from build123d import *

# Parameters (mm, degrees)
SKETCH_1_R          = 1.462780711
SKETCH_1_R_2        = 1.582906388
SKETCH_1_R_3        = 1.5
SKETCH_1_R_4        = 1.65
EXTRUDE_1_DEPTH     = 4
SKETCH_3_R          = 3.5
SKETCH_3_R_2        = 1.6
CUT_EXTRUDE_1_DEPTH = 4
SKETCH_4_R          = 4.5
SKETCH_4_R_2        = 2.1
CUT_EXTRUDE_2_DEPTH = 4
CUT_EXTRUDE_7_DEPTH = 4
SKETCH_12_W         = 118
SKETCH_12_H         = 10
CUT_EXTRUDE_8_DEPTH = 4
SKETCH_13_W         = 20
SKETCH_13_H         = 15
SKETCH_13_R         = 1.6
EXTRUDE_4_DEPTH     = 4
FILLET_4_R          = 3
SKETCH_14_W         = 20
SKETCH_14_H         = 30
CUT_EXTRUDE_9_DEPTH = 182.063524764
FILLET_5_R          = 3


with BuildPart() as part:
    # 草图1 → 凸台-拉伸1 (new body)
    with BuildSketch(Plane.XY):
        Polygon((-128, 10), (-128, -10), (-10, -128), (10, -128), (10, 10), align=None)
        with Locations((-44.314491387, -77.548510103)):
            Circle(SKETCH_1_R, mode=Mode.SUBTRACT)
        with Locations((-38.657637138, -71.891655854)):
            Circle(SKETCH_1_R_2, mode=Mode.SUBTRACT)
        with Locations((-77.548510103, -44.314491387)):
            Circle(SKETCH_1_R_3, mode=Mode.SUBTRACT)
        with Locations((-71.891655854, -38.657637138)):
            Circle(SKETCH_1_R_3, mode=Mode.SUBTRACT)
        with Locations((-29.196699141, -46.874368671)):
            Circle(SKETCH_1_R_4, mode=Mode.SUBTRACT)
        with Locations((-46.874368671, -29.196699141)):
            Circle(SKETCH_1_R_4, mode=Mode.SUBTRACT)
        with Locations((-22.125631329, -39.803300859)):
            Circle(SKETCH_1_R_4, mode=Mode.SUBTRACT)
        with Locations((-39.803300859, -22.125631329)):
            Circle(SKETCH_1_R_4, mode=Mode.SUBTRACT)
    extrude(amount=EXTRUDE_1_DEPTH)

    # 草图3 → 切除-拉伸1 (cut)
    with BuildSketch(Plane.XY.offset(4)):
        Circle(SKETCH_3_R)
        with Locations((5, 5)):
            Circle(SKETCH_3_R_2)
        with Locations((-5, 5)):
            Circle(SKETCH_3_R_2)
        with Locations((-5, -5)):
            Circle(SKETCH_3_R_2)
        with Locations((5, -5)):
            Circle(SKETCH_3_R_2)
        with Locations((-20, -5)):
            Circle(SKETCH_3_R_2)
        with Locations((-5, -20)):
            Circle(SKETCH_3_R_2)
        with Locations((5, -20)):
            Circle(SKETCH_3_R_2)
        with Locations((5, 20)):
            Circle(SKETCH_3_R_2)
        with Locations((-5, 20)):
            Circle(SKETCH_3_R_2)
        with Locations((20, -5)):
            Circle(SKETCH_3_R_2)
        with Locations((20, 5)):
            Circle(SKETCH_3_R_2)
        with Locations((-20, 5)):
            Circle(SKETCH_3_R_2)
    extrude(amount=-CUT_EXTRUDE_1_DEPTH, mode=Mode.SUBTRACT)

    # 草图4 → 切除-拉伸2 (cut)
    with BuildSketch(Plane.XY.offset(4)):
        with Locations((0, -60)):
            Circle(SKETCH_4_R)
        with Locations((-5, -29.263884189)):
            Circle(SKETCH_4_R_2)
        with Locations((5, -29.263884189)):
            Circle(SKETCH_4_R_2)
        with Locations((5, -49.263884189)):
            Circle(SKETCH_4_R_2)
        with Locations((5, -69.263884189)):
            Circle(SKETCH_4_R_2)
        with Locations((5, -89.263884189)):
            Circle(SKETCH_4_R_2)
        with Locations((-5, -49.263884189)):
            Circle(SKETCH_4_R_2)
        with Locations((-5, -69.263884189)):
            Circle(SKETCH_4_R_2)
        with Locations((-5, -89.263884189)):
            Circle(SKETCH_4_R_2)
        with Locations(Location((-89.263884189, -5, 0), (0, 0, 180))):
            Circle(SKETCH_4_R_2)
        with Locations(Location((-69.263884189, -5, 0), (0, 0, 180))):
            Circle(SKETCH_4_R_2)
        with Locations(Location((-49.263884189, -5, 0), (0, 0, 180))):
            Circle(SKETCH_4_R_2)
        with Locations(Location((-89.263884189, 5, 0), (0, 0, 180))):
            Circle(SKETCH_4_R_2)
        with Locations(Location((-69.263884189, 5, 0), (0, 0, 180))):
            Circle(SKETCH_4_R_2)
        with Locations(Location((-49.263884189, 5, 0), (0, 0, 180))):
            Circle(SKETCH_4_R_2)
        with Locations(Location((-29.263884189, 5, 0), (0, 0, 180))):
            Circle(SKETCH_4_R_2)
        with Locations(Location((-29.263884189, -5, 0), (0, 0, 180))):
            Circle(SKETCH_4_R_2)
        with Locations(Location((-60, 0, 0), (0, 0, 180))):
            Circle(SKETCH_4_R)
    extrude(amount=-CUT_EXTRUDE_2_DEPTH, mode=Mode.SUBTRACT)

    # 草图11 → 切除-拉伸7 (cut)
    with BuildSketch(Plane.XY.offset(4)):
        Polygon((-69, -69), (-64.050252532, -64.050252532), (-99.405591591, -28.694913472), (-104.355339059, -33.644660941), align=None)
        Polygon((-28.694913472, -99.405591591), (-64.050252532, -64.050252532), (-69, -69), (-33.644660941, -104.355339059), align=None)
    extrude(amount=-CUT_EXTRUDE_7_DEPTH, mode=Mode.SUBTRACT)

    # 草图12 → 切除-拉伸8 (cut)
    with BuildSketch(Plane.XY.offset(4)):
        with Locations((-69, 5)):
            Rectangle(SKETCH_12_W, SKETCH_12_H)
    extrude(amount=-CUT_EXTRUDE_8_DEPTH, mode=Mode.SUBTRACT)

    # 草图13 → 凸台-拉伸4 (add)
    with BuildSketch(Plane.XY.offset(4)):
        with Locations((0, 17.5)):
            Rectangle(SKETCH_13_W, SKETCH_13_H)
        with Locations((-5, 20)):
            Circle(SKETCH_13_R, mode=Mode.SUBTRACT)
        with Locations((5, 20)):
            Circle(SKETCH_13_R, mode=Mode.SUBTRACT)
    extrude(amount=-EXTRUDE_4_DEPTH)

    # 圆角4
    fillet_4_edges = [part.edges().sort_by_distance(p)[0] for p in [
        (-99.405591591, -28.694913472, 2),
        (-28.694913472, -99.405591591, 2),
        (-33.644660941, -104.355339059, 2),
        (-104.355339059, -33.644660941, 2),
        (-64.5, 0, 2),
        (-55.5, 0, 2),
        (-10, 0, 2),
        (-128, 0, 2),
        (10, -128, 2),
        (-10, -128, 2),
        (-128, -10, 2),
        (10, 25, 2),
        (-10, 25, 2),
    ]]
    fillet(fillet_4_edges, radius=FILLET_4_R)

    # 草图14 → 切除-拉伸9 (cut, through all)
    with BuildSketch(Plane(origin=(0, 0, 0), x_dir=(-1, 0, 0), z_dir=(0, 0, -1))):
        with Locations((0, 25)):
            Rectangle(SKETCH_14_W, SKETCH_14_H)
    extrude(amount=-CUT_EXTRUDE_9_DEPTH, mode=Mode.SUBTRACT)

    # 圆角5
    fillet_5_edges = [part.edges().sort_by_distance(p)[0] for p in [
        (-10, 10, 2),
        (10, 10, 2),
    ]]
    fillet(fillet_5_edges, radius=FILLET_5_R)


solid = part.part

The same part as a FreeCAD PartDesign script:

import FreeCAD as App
import Part
import Sketcher

V = App.Vector
Q = App.Units.Quantity


def edges_at(feature, points):
    """Names of the edges that pass closest to the given points."""
    edges = feature.Shape.Edges
    near = lambda p: min(range(len(edges)), key=lambda i: edges[i].distToShape(Part.Vertex(*p))[0])
    return sorted({f"Edge{near(p) + 1}" for p in points})

doc = App.newDocument("Part")
body = doc.addObject("PartDesign::Body", "Body")

# Sketch on XY plane
sketch1 = body.newObject("Sketcher::SketchObject", "Sketch")
sketch1.AttachmentSupport = (doc.getObject("XY_Plane"), [""])
sketch1.MapMode = "FlatFace"
sketch1.addGeometry(Part.LineSegment(V(-128, 10, 0), V(-128, -10, 0)), False)
sketch1.addGeometry(Part.LineSegment(V(-128, -10, 0), V(-10, -128, 0)), False)
sketch1.addGeometry(Part.LineSegment(V(-10, -128, 0), V(10, -128, 0)), False)
sketch1.addGeometry(Part.LineSegment(V(10, -128, 0), V(10, 10, 0)), False)
sketch1.addGeometry(Part.LineSegment(V(10, 10, 0), V(-128, 10, 0)), False)
sketch1.addGeometry(Part.Circle(V(-44.3, -77.5, 0), V(0, 0, 1), 1.5), False)
sketch1.addGeometry(Part.Circle(V(-38.7, -71.9, 0), V(0, 0, 1), 1.6), False)
sketch1.addGeometry(Part.Circle(V(-77.5, -44.3, 0), V(0, 0, 1), 1.5), False)
sketch1.addGeometry(Part.Circle(V(-71.9, -38.7, 0), V(0, 0, 1), 1.5), False)
sketch1.addGeometry(Part.Circle(V(-29.2, -46.9, 0), V(0, 0, 1), 1.6), False)
sketch1.addGeometry(Part.Circle(V(-22.1, -39.8, 0), V(0, 0, 1), 1.6), False)
sketch1.addGeometry(Part.Circle(V(-46.9, -29.2, 0), V(0, 0, 1), 1.6), False)
sketch1.addGeometry(Part.Circle(V(-39.8, -22.1, 0), V(0, 0, 1), 1.6), False)
sketch1.addConstraint(Sketcher.Constraint("Coincident", 0, 2, 1, 1))
sketch1.addConstraint(Sketcher.Constraint("Coincident", 1, 2, 2, 1))
sketch1.addConstraint(Sketcher.Constraint("Coincident", 2, 2, 3, 1))
sketch1.addConstraint(Sketcher.Constraint("Coincident", 3, 2, 4, 1))
sketch1.addConstraint(Sketcher.Constraint("Coincident", 4, 2, 0, 1))
sketch1.addConstraint(Sketcher.Constraint("Vertical", 0))
sketch1.addConstraint(Sketcher.Constraint("Horizontal", 2))
sketch1.addConstraint(Sketcher.Constraint("Vertical", 3))
sketch1.addConstraint(Sketcher.Constraint("Horizontal", 4))
sketch1.addConstraint(Sketcher.Constraint("Equal", 7, 8))
sketch1.addConstraint(Sketcher.Constraint("Equal", 9, 10))
sketch1.addConstraint(Sketcher.Constraint("Equal", 10, 11))
sketch1.addConstraint(Sketcher.Constraint("Equal", 11, 12))
sketch1.addConstraint(Sketcher.Constraint("Equal", 2, 0))
sketch1.addConstraint(Sketcher.Constraint("Equal", 4, 3))
sketch1.addConstraint(Sketcher.Constraint("Diameter", 7, Q("3 mm")))
sketch1.addConstraint(Sketcher.Constraint("Diameter", 9, Q("3.3 mm")))
sketch1.addConstraint(Sketcher.Constraint("DistanceX", 2, 1, 2, 2, Q("20 mm")))
sketch1.addConstraint(Sketcher.Constraint("DistanceX", 4, 2, 4, 1, Q("138 mm")))
sketch1.addConstraint(Sketcher.Constraint("DistanceX", 0, 2, -1, 1, Q("128 mm")))
sketch1.addConstraint(Sketcher.Constraint("DistanceY", 0, 2, -1, 1, Q("10 mm")))
sketch1.addConstraint(Sketcher.Constraint("Diameter", 5, Q("2.925561 mm")))
sketch1.addConstraint(Sketcher.Constraint("Diameter", 6, Q("3.165813 mm")))
sketch1.addConstraint(Sketcher.Constraint("DistanceX", 9, 3, -1, 1, Q("29.196699 mm")))
sketch1.addConstraint(Sketcher.Constraint("DistanceY", 10, 3, -1, 1, Q("39.803301 mm")))
sketch1.addConstraint(Sketcher.Constraint("DistanceY", 11, 3, -1, 1, Q("29.196699 mm")))
sketch1.addConstraint(Sketcher.Constraint("DistanceX", 12, 3, -1, 1, Q("39.803301 mm")))
sketch1.addConstraint(Sketcher.Constraint("DistanceX", 5, 3, -1, 1, Q("44.314491 mm")))
sketch1.addConstraint(Sketcher.Constraint("DistanceY", 5, 3, -1, 1, Q("77.54851 mm")))
sketch1.addConstraint(Sketcher.Constraint("DistanceX", 7, 3, -1, 1, Q("77.54851 mm")))
sketch1.addConstraint(Sketcher.Constraint("DistanceY", 7, 3, -1, 1, Q("44.314491 mm")))
sketch1.addConstraint(Sketcher.Constraint("DistanceY", 9, 3, -1, 1, Q("46.874369 mm")))
sketch1.addConstraint(Sketcher.Constraint("DistanceX", 10, 3, -1, 1, Q("22.125631 mm")))
sketch1.addConstraint(Sketcher.Constraint("DistanceX", 11, 3, -1, 1, Q("46.874369 mm")))
sketch1.addConstraint(Sketcher.Constraint("DistanceY", 12, 3, -1, 1, Q("22.125631 mm")))
sketch1.addConstraint(Sketcher.Constraint("DistanceX", 8, 3, 6, 3, Q("33.234019 mm")))
sketch1.addConstraint(Sketcher.Constraint("DistanceY", 6, 3, 8, 3, Q("33.234019 mm")))
sketch1.addConstraint(Sketcher.Constraint("DistanceY", 9, 3, 8, 3, Q("8.216732 mm")))
sketch1.addConstraint(Sketcher.Constraint("DistanceX", 11, 3, 6, 3, Q("8.216732 mm")))
pad1 = body.newObject("PartDesign::Pad", "Pad")
pad1.Profile = sketch1
pad1.Length = 4

# Sketch on XY plane
sketch2 = body.newObject("Sketcher::SketchObject", "Sketch001")
sketch2.AttachmentSupport = (doc.getObject("XY_Plane"), [""])
sketch2.MapMode = "FlatFace"
sketch2.AttachmentOffset = App.Placement(V(0, 0, 4), App.Rotation())
sketch2.addGeometry(Part.Circle(V(0, 0, 0), V(0, 0, 1), 3.5), False)
sketch2.addGeometry(Part.Circle(V(5, 5, 0), V(0, 0, 1), 1.6), False)
sketch2.addGeometry(Part.Circle(V(-5, 5, 0), V(0, 0, 1), 1.6), False)
sketch2.addGeometry(Part.Circle(V(-5, -5, 0), V(0, 0, 1), 1.6), False)
sketch2.addGeometry(Part.Circle(V(5, -5, 0), V(0, 0, 1), 1.6), False)
sketch2.addGeometry(Part.Circle(V(-20, -5, 0), V(0, 0, 1), 1.6), False)
sketch2.addGeometry(Part.Circle(V(-5, -20, 0), V(0, 0, 1), 1.6), False)
sketch2.addGeometry(Part.Circle(V(5, -20, 0), V(0, 0, 1), 1.6), False)
sketch2.addGeometry(Part.Circle(V(5, 20, 0), V(0, 0, 1), 1.6), False)
sketch2.addGeometry(Part.Circle(V(-5, 20, 0), V(0, 0, 1), 1.6), False)
sketch2.addGeometry(Part.Circle(V(20, -5, 0), V(0, 0, 1), 1.6), False)
sketch2.addGeometry(Part.Circle(V(20, 5, 0), V(0, 0, 1), 1.6), False)
sketch2.addGeometry(Part.Circle(V(-20, 5, 0), V(0, 0, 1), 1.6), False)
sketch2.addConstraint(Sketcher.Constraint("Coincident", 0, 3, -1, 1))
sketch2.addConstraint(Sketcher.Constraint("Equal", 1, 2))
sketch2.addConstraint(Sketcher.Constraint("Equal", 2, 3))
sketch2.addConstraint(Sketcher.Constraint("Equal", 3, 4))
sketch2.addConstraint(Sketcher.Constraint("Equal", 4, 5))
sketch2.addConstraint(Sketcher.Constraint("Equal", 5, 6))
sketch2.addConstraint(Sketcher.Constraint("Equal", 6, 7))
sketch2.addConstraint(Sketcher.Constraint("Equal", 7, 8))
sketch2.addConstraint(Sketcher.Constraint("Equal", 8, 9))
sketch2.addConstraint(Sketcher.Constraint("Equal", 9, 10))
sketch2.addConstraint(Sketcher.Constraint("Equal", 10, 11))
sketch2.addConstraint(Sketcher.Constraint("Equal", 11, 12))
sketch2.addConstraint(Sketcher.Constraint("Symmetric", 1, 3, 3, 3, -1, 1))
sketch2.addConstraint(Sketcher.Constraint("Symmetric", 2, 3, 4, 3, -1, 1))
sketch2.addConstraint(Sketcher.Constraint("Symmetric", 6, 3, 8, 3, -1, 1))
sketch2.addConstraint(Sketcher.Constraint("Symmetric", 7, 3, 9, 3, -1, 1))
sketch2.addConstraint(Sketcher.Constraint("Symmetric", 5, 3, 11, 3, -1, 1))
sketch2.addConstraint(Sketcher.Constraint("Symmetric", 10, 3, 12, 3, -1, 1))
sketch2.addConstraint(Sketcher.Constraint("Symmetric", 1, 3, 2, 3, -2))
sketch2.addConstraint(Sketcher.Constraint("Symmetric", 6, 3, 7, 3, -2))
sketch2.addConstraint(Sketcher.Constraint("Symmetric", 5, 3, 10, 3, -2))
sketch2.addConstraint(Sketcher.Constraint("Horizontal", 4, 3, 5, 3))
sketch2.addConstraint(Sketcher.Constraint("Vertical", 3, 3, 6, 3))
sketch2.addConstraint(Sketcher.Constraint("Diameter", 0, Q("7 mm")))
sketch2.addConstraint(Sketcher.Constraint("Diameter", 1, Q("3.2 mm")))
sketch2.addConstraint(Sketcher.Constraint("DistanceX", -1, 1, 1, 3, Q("5 mm")))
sketch2.addConstraint(Sketcher.Constraint("DistanceY", -1, 1, 1, 3, Q("5 mm")))
sketch2.addConstraint(Sketcher.Constraint("DistanceX", 5, 3, -1, 1, Q("20 mm")))
sketch2.addConstraint(Sketcher.Constraint("DistanceY", 6, 3, -1, 1, Q("20 mm")))
pocket1 = body.newObject("PartDesign::Pocket", "Pocket")
pocket1.Profile = sketch2
pocket1.Length = 4

# Sketch on XY plane
sketch3 = body.newObject("Sketcher::SketchObject", "Sketch002")
sketch3.AttachmentSupport = (doc.getObject("XY_Plane"), [""])
sketch3.MapMode = "FlatFace"
sketch3.AttachmentOffset = App.Placement(V(0, 0, 4), App.Rotation())
sketch3.addGeometry(Part.Circle(V(0, -60, 0), V(0, 0, 1), 4.5), False)
sketch3.addGeometry(Part.Circle(V(-5, -29.3, 0), V(0, 0, 1), 2.1), False)
sketch3.addGeometry(Part.Circle(V(5, -29.3, 0), V(0, 0, 1), 2.1), False)
sketch3.addGeometry(Part.Circle(V(5, -49.3, 0), V(0, 0, 1), 2.1), False)
sketch3.addGeometry(Part.Circle(V(5, -69.3, 0), V(0, 0, 1), 2.1), False)
sketch3.addGeometry(Part.Circle(V(5, -89.3, 0), V(0, 0, 1), 2.1), False)
sketch3.addGeometry(Part.Circle(V(-5, -49.3, 0), V(0, 0, 1), 2.1), False)
sketch3.addGeometry(Part.Circle(V(-5, -69.3, 0), V(0, 0, 1), 2.1), False)
sketch3.addGeometry(Part.Circle(V(-5, -89.3, 0), V(0, 0, 1), 2.1), False)
sketch3.addGeometry(Part.Circle(V(-89.3, -5, 0), V(0, 0, 1), 2.1), False)
sketch3.addGeometry(Part.Circle(V(-69.3, -5, 0), V(0, 0, 1), 2.1), False)
sketch3.addGeometry(Part.Circle(V(-49.3, -5, 0), V(0, 0, 1), 2.1), False)
sketch3.addGeometry(Part.Circle(V(-89.3, 5, 0), V(0, 0, 1), 2.1), False)
sketch3.addGeometry(Part.Circle(V(-69.3, 5, 0), V(0, 0, 1), 2.1), False)
sketch3.addGeometry(Part.Circle(V(-49.3, 5, 0), V(0, 0, 1), 2.1), False)
sketch3.addGeometry(Part.Circle(V(-29.3, 5, 0), V(0, 0, 1), 2.1), False)
sketch3.addGeometry(Part.Circle(V(-29.3, -5, 0), V(0, 0, 1), 2.1), False)
sketch3.addGeometry(Part.Circle(V(-60, 0, 0), V(0, 0, 1), 4.5), False)
sketch3.addConstraint(Sketcher.Constraint("Equal", 1, 2))
sketch3.addConstraint(Sketcher.Constraint("Equal", 2, 3))
sketch3.addConstraint(Sketcher.Constraint("Equal", 3, 4))
sketch3.addConstraint(Sketcher.Constraint("Equal", 4, 5))
sketch3.addConstraint(Sketcher.Constraint("Equal", 5, 6))
sketch3.addConstraint(Sketcher.Constraint("Equal", 6, 7))
sketch3.addConstraint(Sketcher.Constraint("Equal", 7, 8))
sketch3.addConstraint(Sketcher.Constraint("Equal", 8, 9))
sketch3.addConstraint(Sketcher.Constraint("Equal", 9, 10))
sketch3.addConstraint(Sketcher.Constraint("Equal", 10, 11))
sketch3.addConstraint(Sketcher.Constraint("Equal", 11, 12))
sketch3.addConstraint(Sketcher.Constraint("Equal", 12, 13))
sketch3.addConstraint(Sketcher.Constraint("Equal", 13, 14))
sketch3.addConstraint(Sketcher.Constraint("Equal", 14, 15))
sketch3.addConstraint(Sketcher.Constraint("Equal", 15, 16))
sketch3.addConstraint(Sketcher.Constraint("Equal", 0, 17))
sketch3.addConstraint(Sketcher.Constraint("Symmetric", 1, 3, 2, 3, -2))
sketch3.addConstraint(Sketcher.Constraint("Symmetric", 3, 3, 6, 3, -2))
sketch3.addConstraint(Sketcher.Constraint("Symmetric", 4, 3, 7, 3, -2))
sketch3.addConstraint(Sketcher.Constraint("Symmetric", 5, 3, 8, 3, -2))
sketch3.addConstraint(Sketcher.Constraint("Symmetric", 9, 3, 12, 3, -1))
sketch3.addConstraint(Sketcher.Constraint("Symmetric", 10, 3, 13, 3, -1))
sketch3.addConstraint(Sketcher.Constraint("Symmetric", 11, 3, 14, 3, -1))
sketch3.addConstraint(Sketcher.Constraint("Symmetric", 15, 3, 16, 3, -1))
sketch3.addConstraint(Sketcher.Constraint("PointOnObject", 0, 3, -2))
sketch3.addConstraint(Sketcher.Constraint("PointOnObject", 17, 3, -1))
sketch3.addConstraint(Sketcher.Constraint("Horizontal", 9, 3, 10, 3))
sketch3.addConstraint(Sketcher.Constraint("Horizontal", 10, 3, 11, 3))
sketch3.addConstraint(Sketcher.Constraint("Horizontal", 14, 3, 15, 3))
sketch3.addConstraint(Sketcher.Constraint("Vertical", 2, 3, 3, 3))
sketch3.addConstraint(Sketcher.Constraint("Vertical", 3, 3, 4, 3))
sketch3.addConstraint(Sketcher.Constraint("Vertical", 4, 3, 5, 3))
sketch3.addConstraint(Sketcher.Constraint("Diameter", 0, Q("9 mm")))
sketch3.addConstraint(Sketcher.Constraint("Diameter", 1, Q("4.2 mm")))
sketch3.addConstraint(Sketcher.Constraint("DistanceY", 0, 3, -1, 1, Q("60 mm")))
sketch3.addConstraint(Sketcher.Constraint("DistanceX", 1, 3, -1, 1, Q("5 mm")))
sketch3.addConstraint(Sketcher.Constraint("DistanceY", 9, 3, -1, 1, Q("5 mm")))
sketch3.addConstraint(Sketcher.Constraint("DistanceX", 17, 3, -1, 1, Q("60 mm")))
sketch3.addConstraint(Sketcher.Constraint("DistanceY", 3, 3, 2, 3, Q("20 mm")))
sketch3.addConstraint(Sketcher.Constraint("DistanceY", 4, 3, 3, 3, Q("20 mm")))
sketch3.addConstraint(Sketcher.Constraint("DistanceY", 5, 3, 4, 3, Q("20 mm")))
sketch3.addConstraint(Sketcher.Constraint("DistanceX", 9, 3, 10, 3, Q("20 mm")))
sketch3.addConstraint(Sketcher.Constraint("DistanceX", 10, 3, 11, 3, Q("20 mm")))
sketch3.addConstraint(Sketcher.Constraint("DistanceX", 14, 3, 15, 3, Q("20 mm")))
sketch3.addConstraint(Sketcher.Constraint("DistanceY", 1, 3, -1, 1, Q("29.263884 mm")))
sketch3.addConstraint(Sketcher.Constraint("DistanceX", 9, 3, -1, 1, Q("89.263884 mm")))
pocket2 = body.newObject("PartDesign::Pocket", "Pocket001")
pocket2.Profile = sketch3
pocket2.Length = 4

# Sketch on XY plane
sketch4 = body.newObject("Sketcher::SketchObject", "Sketch003")
sketch4.AttachmentSupport = (doc.getObject("XY_Plane"), [""])
sketch4.MapMode = "FlatFace"
sketch4.AttachmentOffset = App.Placement(V(0, 0, 4), App.Rotation())
sketch4.addGeometry(Part.LineSegment(V(-64, -64, 0), V(-99, -29, 0)), False)
sketch4.addGeometry(Part.LineSegment(V(-99, -29, 0), V(-104, -34, 0)), False)
sketch4.addGeometry(Part.LineSegment(V(-104, -34, 0), V(-34, -104, 0)), False)
sketch4.addGeometry(Part.LineSegment(V(-34, -104, 0), V(-29, -99, 0)), False)
sketch4.addGeometry(Part.LineSegment(V(-29, -99, 0), V(-64, -64, 0)), False)
sketch4.addConstraint(Sketcher.Constraint("Coincident", 0, 2, 1, 1))
sketch4.addConstraint(Sketcher.Constraint("Coincident", 1, 2, 2, 1))
sketch4.addConstraint(Sketcher.Constraint("Coincident", 2, 2, 3, 1))
sketch4.addConstraint(Sketcher.Constraint("Coincident", 3, 2, 4, 1))
sketch4.addConstraint(Sketcher.Constraint("Coincident", 4, 2, 0, 1))
sketch4.addConstraint(Sketcher.Constraint("Perpendicular", 0, 1))
sketch4.addConstraint(Sketcher.Constraint("Perpendicular", 1, 2))
sketch4.addConstraint(Sketcher.Constraint("Perpendicular", 2, 3))
sketch4.addConstraint(Sketcher.Constraint("Perpendicular", 3, 4))
sketch4.addConstraint(Sketcher.Constraint("Equal", 0, 4))
sketch4.addConstraint(Sketcher.Constraint("Angle", 0, Q("135 deg")))
sketch4.addConstraint(Sketcher.Constraint("Distance", 0, Q("50 mm")))
sketch4.addConstraint(Sketcher.Constraint("Distance", 1, Q("7 mm")))
sketch4.addConstraint(Sketcher.Constraint("DistanceX", 0, 2, -1, 1, Q("99.405592 mm")))
sketch4.addConstraint(Sketcher.Constraint("DistanceY", 1, 2, -1, 1, Q("33.644661 mm")))
pocket3 = body.newObject("PartDesign::Pocket", "Pocket002")
pocket3.Profile = sketch4
pocket3.Length = 4

# Sketch on XY plane
sketch5 = body.newObject("Sketcher::SketchObject", "Sketch004")
sketch5.AttachmentSupport = (doc.getObject("XY_Plane"), [""])
sketch5.MapMode = "FlatFace"
sketch5.AttachmentOffset = App.Placement(V(0, 0, 4), App.Rotation())
sketch5.addGeometry(Part.LineSegment(V(-128, 10, 0), V(-128, 0, 0)), False)
sketch5.addGeometry(Part.LineSegment(V(-128, 0, 0), V(-10, 0, 0)), False)
sketch5.addGeometry(Part.LineSegment(V(-10, 0, 0), V(-10, 10, 0)), False)
sketch5.addGeometry(Part.LineSegment(V(-10, 10, 0), V(-128, 10, 0)), False)
sketch5.addConstraint(Sketcher.Constraint("Coincident", 0, 2, 1, 1))
sketch5.addConstraint(Sketcher.Constraint("Coincident", 1, 2, 2, 1))
sketch5.addConstraint(Sketcher.Constraint("Coincident", 2, 2, 3, 1))
sketch5.addConstraint(Sketcher.Constraint("Coincident", 3, 2, 0, 1))
sketch5.addConstraint(Sketcher.Constraint("Vertical", 0))
sketch5.addConstraint(Sketcher.Constraint("Horizontal", 1))
sketch5.addConstraint(Sketcher.Constraint("Vertical", 2))
sketch5.addConstraint(Sketcher.Constraint("Horizontal", 3))
sketch5.addConstraint(Sketcher.Constraint("PointOnObject", 0, 2, -1))
sketch5.addConstraint(Sketcher.Constraint("DistanceX", 1, 1, 1, 2, Q("118 mm")))
sketch5.addConstraint(Sketcher.Constraint("DistanceY", 0, 2, 0, 1, Q("10 mm")))
sketch5.addConstraint(Sketcher.Constraint("DistanceX", 0, 2, -1, 1, Q("128 mm")))
pocket4 = body.newObject("PartDesign::Pocket", "Pocket003")
pocket4.Profile = sketch5
pocket4.Length = 4

# Sketch on XY plane
sketch6 = body.newObject("Sketcher::SketchObject", "Sketch005")
sketch6.AttachmentSupport = (doc.getObject("XY_Plane"), [""])
sketch6.MapMode = "FlatFace"
sketch6.AttachmentOffset = App.Placement(V(0, 0, 4), App.Rotation())
sketch6.addGeometry(Part.LineSegment(V(-10, 25, 0), V(-10, 10, 0)), False)
sketch6.addGeometry(Part.LineSegment(V(-10, 10, 0), V(10, 10, 0)), False)
sketch6.addGeometry(Part.LineSegment(V(10, 10, 0), V(10, 25, 0)), False)
sketch6.addGeometry(Part.LineSegment(V(10, 25, 0), V(-10, 25, 0)), False)
sketch6.addGeometry(Part.Circle(V(-5, 20, 0), V(0, 0, 1), 1.6), False)
sketch6.addGeometry(Part.Circle(V(5, 20, 0), V(0, 0, 1), 1.6), False)
sketch6.addConstraint(Sketcher.Constraint("Coincident", 0, 2, 1, 1))
sketch6.addConstraint(Sketcher.Constraint("Coincident", 1, 2, 2, 1))
sketch6.addConstraint(Sketcher.Constraint("Coincident", 2, 2, 3, 1))
sketch6.addConstraint(Sketcher.Constraint("Coincident", 3, 2, 0, 1))
sketch6.addConstraint(Sketcher.Constraint("Vertical", 0))
sketch6.addConstraint(Sketcher.Constraint("Horizontal", 1))
sketch6.addConstraint(Sketcher.Constraint("Vertical", 2))
sketch6.addConstraint(Sketcher.Constraint("Horizontal", 3))
sketch6.addConstraint(Sketcher.Constraint("Equal", 4, 5))
sketch6.addConstraint(Sketcher.Constraint("Symmetric", 4, 3, 5, 3, -2))
sketch6.addConstraint(Sketcher.Constraint("Diameter", 4, Q("3.2 mm")))
sketch6.addConstraint(Sketcher.Constraint("DistanceX", 1, 1, 1, 2, Q("20 mm")))
sketch6.addConstraint(Sketcher.Constraint("DistanceY", 0, 2, 0, 1, Q("15 mm")))
sketch6.addConstraint(Sketcher.Constraint("DistanceX", 4, 3, -1, 1, Q("5 mm")))
sketch6.addConstraint(Sketcher.Constraint("DistanceY", -1, 1, 4, 3, Q("20 mm")))
sketch6.addConstraint(Sketcher.Constraint("DistanceX", 0, 2, -1, 1, Q("10 mm")))
sketch6.addConstraint(Sketcher.Constraint("DistanceY", -1, 1, 0, 2, Q("10 mm")))
pad2 = body.newObject("PartDesign::Pad", "Pad001")
pad2.Profile = sketch6
pad2.Length = 4
pad2.Reversed = True
doc.recompute()

fillet = body.newObject("PartDesign::Fillet", "Fillet")
fillet.Base = (pad2, edges_at(pad2, [
    (-99.406, -28.695, 2),
    (-28.695, -99.406, 2),
    (-33.645, -104.355, 2),
    (-104.355, -33.645, 2),
    (-64.5, 0, 2),
    (-55.5, 0, 2),
    (-10, 0, 2),
    (-128, 0, 2),
    (10, -128, 2),
    (-10, -128, 2),
    (-128, -10, 2),
    (10, 25, 2),
    (-10, 25, 2),
]))
fillet.Radius = 3

# Sketch on XY plane
sketch7 = body.newObject("Sketcher::SketchObject", "Sketch006")
sketch7.AttachmentSupport = (doc.getObject("XY_Plane"), [""])
sketch7.MapMode = "FlatFace"
sketch7.addGeometry(Part.LineSegment(V(10, 40, 0), V(10, 10, 0)), False)
sketch7.addGeometry(Part.LineSegment(V(10, 10, 0), V(-10, 10, 0)), False)
sketch7.addGeometry(Part.LineSegment(V(-10, 10, 0), V(-10, 40, 0)), False)
sketch7.addGeometry(Part.LineSegment(V(-10, 40, 0), V(10, 40, 0)), False)
sketch7.addConstraint(Sketcher.Constraint("Coincident", 0, 2, 1, 1))
sketch7.addConstraint(Sketcher.Constraint("Coincident", 1, 2, 2, 1))
sketch7.addConstraint(Sketcher.Constraint("Coincident", 2, 2, 3, 1))
sketch7.addConstraint(Sketcher.Constraint("Coincident", 3, 2, 0, 1))
sketch7.addConstraint(Sketcher.Constraint("Vertical", 0))
sketch7.addConstraint(Sketcher.Constraint("Horizontal", 1))
sketch7.addConstraint(Sketcher.Constraint("Vertical", 2))
sketch7.addConstraint(Sketcher.Constraint("Horizontal", 3))
sketch7.addConstraint(Sketcher.Constraint("DistanceX", 1, 2, 1, 1, Q("20 mm")))
sketch7.addConstraint(Sketcher.Constraint("DistanceY", 0, 2, 0, 1, Q("30 mm")))
sketch7.addConstraint(Sketcher.Constraint("DistanceX", -1, 1, 0, 2, Q("10 mm")))
sketch7.addConstraint(Sketcher.Constraint("DistanceY", -1, 1, 0, 2, Q("10 mm")))
pocket5 = body.newObject("PartDesign::Pocket", "Pocket004")
pocket5.Profile = sketch7
pocket5.Type = "ThroughAll"
pocket5.Reversed = True
doc.recompute()

fillet2 = body.newObject("PartDesign::Fillet", "Fillet001")
fillet2.Base = (pocket5, edges_at(pocket5, [(-10, 10, 2), (10, 10, 2)]))
fillet2.Radius = 3

doc.recompute()
